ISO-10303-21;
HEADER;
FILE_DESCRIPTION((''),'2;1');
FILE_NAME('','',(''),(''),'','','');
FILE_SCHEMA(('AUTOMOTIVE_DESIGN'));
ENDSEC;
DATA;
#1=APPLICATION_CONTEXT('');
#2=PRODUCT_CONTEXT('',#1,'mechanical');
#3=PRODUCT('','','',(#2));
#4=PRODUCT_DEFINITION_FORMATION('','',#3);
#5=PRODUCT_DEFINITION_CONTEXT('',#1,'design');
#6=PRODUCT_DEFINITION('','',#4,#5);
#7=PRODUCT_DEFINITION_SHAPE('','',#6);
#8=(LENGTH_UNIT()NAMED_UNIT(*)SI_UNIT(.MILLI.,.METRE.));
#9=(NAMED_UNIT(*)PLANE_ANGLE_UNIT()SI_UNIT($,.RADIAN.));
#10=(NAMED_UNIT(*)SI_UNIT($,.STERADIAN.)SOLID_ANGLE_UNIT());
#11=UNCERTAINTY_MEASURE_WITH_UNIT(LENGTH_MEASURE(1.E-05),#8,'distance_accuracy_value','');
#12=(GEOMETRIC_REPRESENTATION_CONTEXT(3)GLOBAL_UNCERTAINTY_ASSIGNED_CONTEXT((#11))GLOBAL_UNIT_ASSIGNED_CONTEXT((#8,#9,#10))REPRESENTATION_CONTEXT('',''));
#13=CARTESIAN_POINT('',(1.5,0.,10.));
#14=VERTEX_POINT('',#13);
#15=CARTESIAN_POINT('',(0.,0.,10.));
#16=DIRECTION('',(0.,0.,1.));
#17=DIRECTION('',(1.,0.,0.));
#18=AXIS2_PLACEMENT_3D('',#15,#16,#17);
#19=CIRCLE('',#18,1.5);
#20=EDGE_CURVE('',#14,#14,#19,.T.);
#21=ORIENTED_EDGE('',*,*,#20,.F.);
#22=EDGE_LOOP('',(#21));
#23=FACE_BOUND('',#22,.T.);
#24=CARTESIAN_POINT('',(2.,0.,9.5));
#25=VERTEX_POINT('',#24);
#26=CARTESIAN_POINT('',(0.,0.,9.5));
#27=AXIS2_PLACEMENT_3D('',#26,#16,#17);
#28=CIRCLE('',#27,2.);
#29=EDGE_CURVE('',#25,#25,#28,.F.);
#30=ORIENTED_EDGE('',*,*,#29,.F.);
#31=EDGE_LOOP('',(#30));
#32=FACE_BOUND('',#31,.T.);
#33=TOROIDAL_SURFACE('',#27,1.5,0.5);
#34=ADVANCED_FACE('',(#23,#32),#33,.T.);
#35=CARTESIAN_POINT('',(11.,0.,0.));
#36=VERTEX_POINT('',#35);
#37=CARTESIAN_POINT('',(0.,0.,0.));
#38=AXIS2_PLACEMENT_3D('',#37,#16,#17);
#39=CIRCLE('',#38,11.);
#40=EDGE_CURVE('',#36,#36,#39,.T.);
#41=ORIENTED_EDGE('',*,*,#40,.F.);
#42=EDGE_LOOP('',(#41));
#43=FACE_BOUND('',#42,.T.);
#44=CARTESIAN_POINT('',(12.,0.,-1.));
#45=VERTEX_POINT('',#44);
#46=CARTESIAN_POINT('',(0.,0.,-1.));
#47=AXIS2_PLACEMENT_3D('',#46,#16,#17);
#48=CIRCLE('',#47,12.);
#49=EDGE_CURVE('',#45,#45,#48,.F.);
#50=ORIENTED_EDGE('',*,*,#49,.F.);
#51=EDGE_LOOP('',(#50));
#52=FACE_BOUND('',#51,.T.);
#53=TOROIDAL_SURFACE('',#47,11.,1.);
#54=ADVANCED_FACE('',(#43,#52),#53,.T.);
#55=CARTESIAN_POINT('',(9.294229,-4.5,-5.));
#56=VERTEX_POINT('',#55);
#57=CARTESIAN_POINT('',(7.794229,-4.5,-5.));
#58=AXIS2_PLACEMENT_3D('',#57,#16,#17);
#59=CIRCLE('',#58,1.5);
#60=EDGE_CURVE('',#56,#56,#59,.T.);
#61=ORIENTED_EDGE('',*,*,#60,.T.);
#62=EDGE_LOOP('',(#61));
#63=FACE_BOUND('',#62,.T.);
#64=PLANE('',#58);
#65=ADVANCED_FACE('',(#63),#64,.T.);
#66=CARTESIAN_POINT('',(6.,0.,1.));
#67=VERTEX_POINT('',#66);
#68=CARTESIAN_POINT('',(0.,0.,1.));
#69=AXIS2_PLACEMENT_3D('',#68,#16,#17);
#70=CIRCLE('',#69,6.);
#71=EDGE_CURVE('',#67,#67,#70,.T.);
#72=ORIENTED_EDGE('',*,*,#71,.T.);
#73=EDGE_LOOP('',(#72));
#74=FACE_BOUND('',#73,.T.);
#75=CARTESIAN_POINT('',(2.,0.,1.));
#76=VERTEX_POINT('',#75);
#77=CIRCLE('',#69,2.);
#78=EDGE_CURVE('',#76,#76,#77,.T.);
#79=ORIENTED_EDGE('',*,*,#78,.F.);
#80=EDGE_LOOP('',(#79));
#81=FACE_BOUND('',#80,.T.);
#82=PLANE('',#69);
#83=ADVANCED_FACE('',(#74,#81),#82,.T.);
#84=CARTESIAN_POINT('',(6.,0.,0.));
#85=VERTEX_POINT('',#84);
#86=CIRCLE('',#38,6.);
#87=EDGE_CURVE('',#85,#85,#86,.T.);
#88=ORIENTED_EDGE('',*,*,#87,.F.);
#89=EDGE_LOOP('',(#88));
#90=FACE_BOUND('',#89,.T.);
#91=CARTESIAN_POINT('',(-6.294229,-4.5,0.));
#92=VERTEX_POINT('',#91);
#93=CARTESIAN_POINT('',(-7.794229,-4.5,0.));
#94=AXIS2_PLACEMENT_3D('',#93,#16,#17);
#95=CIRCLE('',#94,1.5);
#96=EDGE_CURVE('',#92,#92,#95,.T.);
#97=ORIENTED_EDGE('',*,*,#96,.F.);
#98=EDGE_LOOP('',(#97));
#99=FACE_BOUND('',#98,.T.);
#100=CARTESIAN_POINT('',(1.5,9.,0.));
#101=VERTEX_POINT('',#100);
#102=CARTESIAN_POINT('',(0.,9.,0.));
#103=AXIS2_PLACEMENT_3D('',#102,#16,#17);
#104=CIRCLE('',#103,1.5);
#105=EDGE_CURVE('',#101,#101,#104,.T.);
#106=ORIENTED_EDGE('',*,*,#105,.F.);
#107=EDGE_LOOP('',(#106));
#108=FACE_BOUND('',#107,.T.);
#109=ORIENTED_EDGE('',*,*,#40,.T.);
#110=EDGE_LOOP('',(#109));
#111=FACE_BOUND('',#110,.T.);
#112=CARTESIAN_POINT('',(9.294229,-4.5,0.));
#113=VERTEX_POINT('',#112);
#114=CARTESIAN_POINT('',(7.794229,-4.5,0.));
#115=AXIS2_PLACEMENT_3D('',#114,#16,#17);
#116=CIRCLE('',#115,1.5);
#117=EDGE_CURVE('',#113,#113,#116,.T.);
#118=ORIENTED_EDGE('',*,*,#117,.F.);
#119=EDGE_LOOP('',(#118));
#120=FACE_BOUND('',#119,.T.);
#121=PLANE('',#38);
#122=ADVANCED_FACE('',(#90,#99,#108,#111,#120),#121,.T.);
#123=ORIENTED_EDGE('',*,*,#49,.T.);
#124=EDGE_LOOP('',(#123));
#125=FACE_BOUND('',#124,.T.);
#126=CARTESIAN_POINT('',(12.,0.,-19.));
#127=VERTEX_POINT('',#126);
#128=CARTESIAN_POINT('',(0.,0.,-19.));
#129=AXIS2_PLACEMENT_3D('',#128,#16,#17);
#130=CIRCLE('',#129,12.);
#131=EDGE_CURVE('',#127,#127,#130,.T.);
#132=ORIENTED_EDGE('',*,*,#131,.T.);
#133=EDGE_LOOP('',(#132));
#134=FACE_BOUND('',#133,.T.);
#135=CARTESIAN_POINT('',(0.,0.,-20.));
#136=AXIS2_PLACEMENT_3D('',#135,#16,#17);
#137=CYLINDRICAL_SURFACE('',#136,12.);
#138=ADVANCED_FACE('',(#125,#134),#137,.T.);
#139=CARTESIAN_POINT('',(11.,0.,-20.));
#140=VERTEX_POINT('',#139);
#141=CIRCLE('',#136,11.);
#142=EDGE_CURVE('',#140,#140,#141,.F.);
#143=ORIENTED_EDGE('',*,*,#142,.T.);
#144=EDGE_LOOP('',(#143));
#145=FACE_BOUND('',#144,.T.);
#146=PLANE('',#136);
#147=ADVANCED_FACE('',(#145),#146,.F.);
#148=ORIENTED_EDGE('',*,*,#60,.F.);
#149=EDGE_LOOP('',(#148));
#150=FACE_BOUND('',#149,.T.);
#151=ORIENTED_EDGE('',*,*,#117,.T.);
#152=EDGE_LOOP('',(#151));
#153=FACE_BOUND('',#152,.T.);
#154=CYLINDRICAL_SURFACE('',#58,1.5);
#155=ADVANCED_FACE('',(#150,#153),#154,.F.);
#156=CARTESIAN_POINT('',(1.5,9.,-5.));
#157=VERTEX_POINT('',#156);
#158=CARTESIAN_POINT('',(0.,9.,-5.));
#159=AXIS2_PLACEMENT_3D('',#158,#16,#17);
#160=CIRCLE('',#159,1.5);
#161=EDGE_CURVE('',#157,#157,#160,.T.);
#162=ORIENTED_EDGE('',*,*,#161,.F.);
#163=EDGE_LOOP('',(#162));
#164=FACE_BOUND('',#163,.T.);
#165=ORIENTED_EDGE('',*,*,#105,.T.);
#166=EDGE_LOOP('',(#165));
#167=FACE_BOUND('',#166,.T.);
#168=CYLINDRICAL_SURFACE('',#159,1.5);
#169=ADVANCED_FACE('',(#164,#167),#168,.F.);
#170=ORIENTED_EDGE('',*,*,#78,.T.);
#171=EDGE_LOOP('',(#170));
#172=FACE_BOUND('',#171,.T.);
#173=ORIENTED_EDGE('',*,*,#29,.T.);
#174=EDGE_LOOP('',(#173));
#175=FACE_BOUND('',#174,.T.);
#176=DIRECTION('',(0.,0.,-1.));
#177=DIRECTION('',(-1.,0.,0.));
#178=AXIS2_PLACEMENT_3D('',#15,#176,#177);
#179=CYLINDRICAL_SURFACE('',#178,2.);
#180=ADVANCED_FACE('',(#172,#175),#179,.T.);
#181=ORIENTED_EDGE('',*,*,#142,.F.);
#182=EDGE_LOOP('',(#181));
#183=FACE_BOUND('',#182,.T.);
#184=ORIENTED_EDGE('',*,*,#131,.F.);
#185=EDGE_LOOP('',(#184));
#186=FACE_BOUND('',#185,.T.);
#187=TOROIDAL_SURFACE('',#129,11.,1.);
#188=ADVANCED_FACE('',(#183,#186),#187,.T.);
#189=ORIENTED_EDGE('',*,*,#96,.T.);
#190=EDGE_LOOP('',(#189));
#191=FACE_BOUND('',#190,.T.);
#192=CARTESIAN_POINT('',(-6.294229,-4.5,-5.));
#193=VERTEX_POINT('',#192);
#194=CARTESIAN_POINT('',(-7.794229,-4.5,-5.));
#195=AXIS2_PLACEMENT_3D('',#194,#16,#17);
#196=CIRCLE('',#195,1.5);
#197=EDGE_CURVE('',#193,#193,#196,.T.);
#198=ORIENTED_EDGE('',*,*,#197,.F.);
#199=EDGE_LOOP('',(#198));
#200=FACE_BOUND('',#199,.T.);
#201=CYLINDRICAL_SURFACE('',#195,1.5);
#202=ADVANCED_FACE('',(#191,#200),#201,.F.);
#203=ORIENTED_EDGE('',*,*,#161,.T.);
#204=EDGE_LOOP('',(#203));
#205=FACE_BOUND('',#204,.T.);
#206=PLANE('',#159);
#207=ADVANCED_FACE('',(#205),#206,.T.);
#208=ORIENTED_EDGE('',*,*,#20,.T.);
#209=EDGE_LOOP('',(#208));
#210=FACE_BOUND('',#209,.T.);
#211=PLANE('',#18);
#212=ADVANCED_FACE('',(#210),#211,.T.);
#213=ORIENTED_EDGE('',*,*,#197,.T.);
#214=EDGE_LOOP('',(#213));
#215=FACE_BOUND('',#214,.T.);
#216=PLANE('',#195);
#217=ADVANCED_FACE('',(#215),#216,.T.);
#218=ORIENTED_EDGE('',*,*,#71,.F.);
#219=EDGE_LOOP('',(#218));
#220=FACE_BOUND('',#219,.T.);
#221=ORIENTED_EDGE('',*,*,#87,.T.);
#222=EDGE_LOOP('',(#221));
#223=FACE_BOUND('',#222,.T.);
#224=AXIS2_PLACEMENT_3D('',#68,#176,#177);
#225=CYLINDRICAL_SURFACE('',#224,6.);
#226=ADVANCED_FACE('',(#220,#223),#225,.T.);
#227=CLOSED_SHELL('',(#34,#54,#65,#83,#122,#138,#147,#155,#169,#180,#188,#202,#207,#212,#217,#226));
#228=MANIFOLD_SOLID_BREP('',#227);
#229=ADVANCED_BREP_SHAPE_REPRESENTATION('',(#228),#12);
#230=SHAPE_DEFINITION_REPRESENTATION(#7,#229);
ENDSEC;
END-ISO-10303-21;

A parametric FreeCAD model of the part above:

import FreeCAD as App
import Part
import Sketcher
from FreeCAD import Vector


def edges_at(feature, points):
    """Names of the edges that pass closest to the given points."""
    edges = feature.Shape.Edges
    near = lambda p: min(range(len(edges)), key=lambda i: edges[i].distToShape(Part.Vertex(*p))[0])
    return sorted({f"Edge{near(p) + 1}" for p in points})

doc = App.newDocument("Part")
body = doc.addObject("PartDesign::Body", "Body")

# Sketch on XY plane
sketch1 = doc.addObject("Sketcher::SketchObject", "Sketch")
body.addObject(sketch1)
sketch1.AttachmentSupport = (doc.XY_Plane, [""])
sketch1.MapMode = "FlatFace"
sketch1.addGeometry(Part.Circle(Vector(0, 0, 0), Vector(0, 0, 1), 12), False)
sketch1.addConstraint([
    Sketcher.Constraint("Coincident", 0, 3, -1, 1),
    Sketcher.Constraint("Diameter", 0, 24.0),
])
pad1 = doc.addObject("PartDesign::Pad", "Pad")
body.addObject(pad1)
pad1.Profile = sketch1
pad1.Length = 20
pad1.Reversed = True

# Sketch on XY plane
sketch2 = doc.addObject("Sketcher::SketchObject", "Sketch001")
body.addObject(sketch2)
sketch2.AttachmentSupport = (doc.XY_Plane, [""])
sketch2.MapMode = "FlatFace"
sketch2.addGeometry(Part.Circle(Vector(0, 0, 0), Vector(0, 0, 1), 2), False)
sketch2.addConstraint([
    Sketcher.Constraint("Coincident", 0, 3, -1, 1),
    Sketcher.Constraint("Diameter", 0, 4.0),
])
pad2 = doc.addObject("PartDesign::Pad", "Pad001")
body.addObject(pad2)
pad2.Profile = sketch2
pad2.Length = 10
doc.recompute()

fillet = doc.addObject("PartDesign::Fillet", "Fillet")
body.addObject(fillet)
fillet.Base = (pad2, edges_at(pad2, [(-12, 0, 0)]))
fillet.Radius = 1
doc.recompute()

fillet2 = doc.addObject("PartDesign::Fillet", "Fillet001")
body.addObject(fillet2)
fillet2.Base = (fillet, edges_at(fillet, [(-12, 0, -20)]))
fillet2.Radius = 1
doc.recompute()

fillet3 = doc.addObject("PartDesign::Fillet", "Fillet002")
body.addObject(fillet3)
fillet3.Base = (fillet2, edges_at(fillet2, [(-2, 0, 10)]))
fillet3.Radius = 0.5

# Sketch on XY plane
sketch3 = doc.addObject("Sketcher::SketchObject", "Sketch002")
body.addObject(sketch3)
sketch3.AttachmentSupport = (doc.XY_Plane, [""])
sketch3.MapMode = "FlatFace"
sketch3.addGeometry(Part.Circle(Vector(0, 0, 0), Vector(0, 0, 1), 6), False)
sketch3.addConstraint([
    Sketcher.Constraint("Coincident", 0, 3, -1, 1),
    Sketcher.Constraint("Diameter", 0, 12.0),
])
pad3 = doc.addObject("PartDesign::Pad", "Pad002")
body.addObject(pad3)
pad3.Profile = sketch3
pad3.Length = 1

# Sketch on XY plane
sketch4 = doc.addObject("Sketcher::SketchObject", "Sketch003")
body.addObject(sketch4)
sketch4.AttachmentSupport = (doc.XY_Plane, [""])
sketch4.MapMode = "FlatFace"
sketch4.addGeometry([
    Part.Circle(Vector(0, 9, 0), Vector(0, 0, 1), 1.5),
    Part.Circle(Vector(-7.8, -4.5, 0), Vector(0, 0, 1), 1.5),
    Part.Circle(Vector(7.8, -4.5, 0), Vector(0, 0, 1), 1.5),
], False)
sketch4.addConstraint([
    Sketcher.Constraint("Equal", 0, 1),
    Sketcher.Constraint("Equal", 1, 2),
    Sketcher.Constraint("Symmetric", 1, 3, 2, 3, -2),
    Sketcher.Constraint("PointOnObject", 0, 3, -2),
    Sketcher.Constraint("Diameter", 0, 3.0),
    Sketcher.Constraint("DistanceY", -1, 1, 0, 3, 9.0),
    Sketcher.Constraint("DistanceY", 1, 3, -1, 1, 4.5),
    Sketcher.Constraint("DistanceX", 1, 3, -1, 1, 7.794229),
])
pocket1 = doc.addObject("PartDesign::Pocket", "Pocket")
body.addObject(pocket1)
pocket1.Profile = sketch4
pocket1.Length = 5

doc.recompute()
